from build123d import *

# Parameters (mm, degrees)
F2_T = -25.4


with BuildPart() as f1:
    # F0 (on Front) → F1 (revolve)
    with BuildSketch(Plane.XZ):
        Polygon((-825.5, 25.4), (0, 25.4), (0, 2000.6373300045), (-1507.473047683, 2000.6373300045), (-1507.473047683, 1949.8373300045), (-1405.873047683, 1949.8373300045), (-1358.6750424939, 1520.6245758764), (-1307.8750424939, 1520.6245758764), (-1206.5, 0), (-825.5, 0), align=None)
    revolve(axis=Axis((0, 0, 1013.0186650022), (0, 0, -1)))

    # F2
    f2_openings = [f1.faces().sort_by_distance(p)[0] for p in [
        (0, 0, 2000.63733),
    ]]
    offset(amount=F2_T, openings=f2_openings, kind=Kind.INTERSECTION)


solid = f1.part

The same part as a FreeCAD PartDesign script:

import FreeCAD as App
import Part
import Sketcher

V = App.Vector
Q = App.Units.Quantity


def faces_at(feature, points):
    """Names of the faces that lie closest to the given points."""
    faces = feature.Shape.Faces
    near = lambda p: min(range(len(faces)), key=lambda i: faces[i].distToShape(Part.Vertex(*p))[0])
    return sorted({f"Face{near(p) + 1}" for p in points})

doc = App.newDocument("Part")
body = doc.addObject("PartDesign::Body", "Body")

# Sketch on XZ plane
sketch1 = body.newObject("Sketcher::SketchObject", "Sketch")
sketch1.AttachmentSupport = (doc.getObject("XZ_Plane"), [""])
sketch1.MapMode = "FlatFace"
sketch1.addGeometry(Part.LineSegment(V(-826, 25, 0), V(0, 25, 0)), False)
sketch1.addGeometry(Part.LineSegment(V(0, 25, 0), V(0, 2001, 0)), False)
sketch1.addGeometry(Part.LineSegment(V(0, 2001, 0), V(-1507, 2001, 0)), False)
sketch1.addGeometry(Part.LineSegment(V(-1507, 2001, 0), V(-1507, 1950, 0)), False)
sketch1.addGeometry(Part.LineSegment(V(-1507, 1950, 0), V(-1406, 1950, 0)), False)
sketch1.addGeometry(Part.LineSegment(V(-1406, 1950, 0), V(-1359, 1521, 0)), False)
sketch1.addGeometry(Part.LineSegment(V(-1359, 1521, 0), V(-1308, 1521, 0)), False)
sketch1.addGeometry(Part.LineSegment(V(-1308, 1521, 0), V(-1206, 0, 0)), False)
sketch1.addGeometry(Part.LineSegment(V(-1206, 0, 0), V(-826, 0, 0)), False)
sketch1.addGeometry(Part.LineSegment(V(-826, 0, 0), V(-826, 25, 0)), False)
sketch1.addConstraint(Sketcher.Constraint("Coincident", 0, 2, 1, 1))
sketch1.addConstraint(Sketcher.Constraint("Coincident", 1, 2, 2, 1))
sketch1.addConstraint(Sketcher.Constraint("Coincident", 2, 2, 3, 1))
sketch1.addConstraint(Sketcher.Constraint("Coincident", 3, 2, 4, 1))
sketch1.addConstraint(Sketcher.Constraint("Coincident", 4, 2, 5, 1))
sketch1.addConstraint(Sketcher.Constraint("Coincident", 5, 2, 6, 1))
sketch1.addConstraint(Sketcher.Constraint("Coincident", 6, 2, 7, 1))
sketch1.addConstraint(Sketcher.Constraint("Coincident", 7, 2, 8, 1))
sketch1.addConstraint(Sketcher.Constraint("Coincident", 8, 2, 9, 1))
sketch1.addConstraint(Sketcher.Constraint("Coincident", 9, 2, 0, 1))
sketch1.addConstraint(Sketcher.Constraint("Horizontal", 0))
sketch1.addConstraint(Sketcher.Constraint("Vertical", 1))
sketch1.addConstraint(Sketcher.Constraint("Horizontal", 2))
sketch1.addConstraint(Sketcher.Constraint("Vertical", 3))
sketch1.addConstraint(Sketcher.Constraint("Horizontal", 4))
sketch1.addConstraint(Sketcher.Constraint("Horizontal", 6))
sketch1.addConstraint(Sketcher.Constraint("Horizontal", 8))
sketch1.addConstraint(Sketcher.Constraint("Vertical", 9))
sketch1.addConstraint(Sketcher.Constraint("PointOnObject", 0, 2, -2))
sketch1.addConstraint(Sketcher.Constraint("PointOnObject", 7, 2, -1))
sketch1.addConstraint(Sketcher.Constraint("Equal", 6, 3))
sketch1.addConstraint(Sketcher.Constraint("DistanceX", 4, 1, 4, 2, Q("4 in")))
sketch1.addConstraint(Sketcher.Constraint("DistanceX", 6, 1, 6, 2, Q("2 in")))
sketch1.addConstraint(Sketcher.Constraint("DistanceX", 8, 1, 8, 2, Q("15 in")))
sketch1.addConstraint(Sketcher.Constraint("DistanceY", 9, 1, 9, 2, Q("1 in")))
sketch1.addConstraint(Sketcher.Constraint("Distance", 5, Q("17 in")))
sketch1.addConstraint(Sketcher.Constraint("Distance", 7, Q("60 in")))
sketch1.addConstraint(Sketcher.Constraint("DistanceX", 0, 1, 0, 2, Q("32.5 in")))
sketch1.addConstraint(Sketcher.Constraint("DistanceY", 1, 1, 1, 2, 1975.23733))
sketch1.addConstraint(Sketcher.Constraint("DistanceX", 2, 2, 2, 1, 1507.473048))
revolution = body.newObject("PartDesign::Revolution", "Revolution")
revolution.Profile = sketch1
revolution.ReferenceAxis = (sketch1, ["V_Axis"])
revolution.Angle = 360
doc.recompute()

thickness = body.newObject("PartDesign::Thickness", "Thickness")
thickness.Base = (revolution, faces_at(revolution, [(0, 0, 2000.637)]))
thickness.Value = Q("1 in")
thickness.Reversed = True
thickness.Join = "Intersection"

doc.recompute()
